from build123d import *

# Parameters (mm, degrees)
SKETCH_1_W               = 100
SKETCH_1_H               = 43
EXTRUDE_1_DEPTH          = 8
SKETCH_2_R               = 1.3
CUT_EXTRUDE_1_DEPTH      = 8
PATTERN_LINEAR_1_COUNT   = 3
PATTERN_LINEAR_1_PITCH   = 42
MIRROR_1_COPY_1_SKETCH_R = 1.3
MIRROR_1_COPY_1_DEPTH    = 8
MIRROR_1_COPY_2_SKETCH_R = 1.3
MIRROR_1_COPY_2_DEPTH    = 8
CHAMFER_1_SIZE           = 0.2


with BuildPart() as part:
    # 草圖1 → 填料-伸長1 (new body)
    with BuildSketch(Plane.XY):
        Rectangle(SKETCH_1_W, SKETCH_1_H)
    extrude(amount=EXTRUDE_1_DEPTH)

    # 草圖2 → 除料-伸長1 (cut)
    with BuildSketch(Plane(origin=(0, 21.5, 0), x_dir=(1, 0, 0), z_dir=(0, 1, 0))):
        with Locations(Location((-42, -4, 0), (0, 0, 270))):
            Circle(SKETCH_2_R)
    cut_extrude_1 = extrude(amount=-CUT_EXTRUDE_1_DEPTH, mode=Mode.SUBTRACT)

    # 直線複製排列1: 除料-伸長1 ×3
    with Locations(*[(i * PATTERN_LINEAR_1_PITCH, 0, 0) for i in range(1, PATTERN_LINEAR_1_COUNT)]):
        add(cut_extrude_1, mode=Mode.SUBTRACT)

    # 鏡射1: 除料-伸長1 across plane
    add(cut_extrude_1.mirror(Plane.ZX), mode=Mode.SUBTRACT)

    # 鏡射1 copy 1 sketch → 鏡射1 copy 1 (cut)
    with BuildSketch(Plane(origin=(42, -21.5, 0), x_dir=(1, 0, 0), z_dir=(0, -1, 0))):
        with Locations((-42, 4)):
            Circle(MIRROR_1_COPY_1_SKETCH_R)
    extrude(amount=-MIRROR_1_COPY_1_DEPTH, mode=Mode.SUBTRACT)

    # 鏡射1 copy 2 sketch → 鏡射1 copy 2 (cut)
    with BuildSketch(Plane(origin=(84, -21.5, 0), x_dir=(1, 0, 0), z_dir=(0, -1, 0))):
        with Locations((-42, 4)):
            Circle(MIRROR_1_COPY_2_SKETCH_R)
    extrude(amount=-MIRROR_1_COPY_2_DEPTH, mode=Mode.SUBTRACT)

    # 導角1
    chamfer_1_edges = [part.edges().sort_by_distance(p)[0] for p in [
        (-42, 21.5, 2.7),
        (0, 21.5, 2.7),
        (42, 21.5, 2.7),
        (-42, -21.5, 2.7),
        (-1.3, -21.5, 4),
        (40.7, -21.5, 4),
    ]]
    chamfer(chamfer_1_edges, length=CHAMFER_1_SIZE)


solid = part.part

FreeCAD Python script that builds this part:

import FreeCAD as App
import Part
import Sketcher

V = App.Vector


def edges_at(feature, points):
    """Names of the edges that pass closest to the given points."""
    edges = feature.Shape.Edges
    near = lambda p: min(range(len(edges)), key=lambda i: edges[i].distToShape(Part.Vertex(*p))[0])
    return sorted({f"Edge{near(p) + 1}" for p in points})

doc = App.newDocument("Part")
body = doc.addObject("PartDesign::Body", "Body")

# Sketch on XY plane
sketch1 = body.newObject("Sketcher::SketchObject", "Sketch")
sketch1.AttachmentSupport = (doc.getObject("XY_Plane"), [""])
sketch1.MapMode = "FlatFace"
sketch1.addGeometry([
    Part.LineSegment(V(-50, 22, 0), V(-50, -22, 0)),
    Part.LineSegment(V(-50, -22, 0), V(50, -22, 0)),
    Part.LineSegment(V(50, -22, 0), V(50, 22, 0)),
    Part.LineSegment(V(50, 22, 0), V(-50, 22, 0)),
], False)
sketch1.addConstraint([
    Sketcher.Constraint("Coincident", 0, 2, 1, 1),
    Sketcher.Constraint("Coincident", 1, 2, 2, 1),
    Sketcher.Constraint("Coincident", 2, 2, 3, 1),
    Sketcher.Constraint("Coincident", 3, 2, 0, 1),
    Sketcher.Constraint("Vertical", 0),
    Sketcher.Constraint("Horizontal", 1),
    Sketcher.Constraint("Vertical", 2),
    Sketcher.Constraint("Horizontal", 3),
    Sketcher.Constraint("Symmetric", 0, 2, 2, 2, -1, 1),
    Sketcher.Constraint("DistanceX", 1, 1, 1, 2, 100.0),
    Sketcher.Constraint("DistanceY", 0, 2, 0, 1, 43.0),
])
pad1 = body.newObject("PartDesign::Pad", "Pad")
pad1.Profile = sketch1
pad1.Length = 8

# Sketch on XZ plane
sketch2 = body.newObject("Sketcher::SketchObject", "Sketch001")
sketch2.AttachmentSupport = (doc.getObject("XZ_Plane"), [""])
sketch2.MapMode = "FlatFace"
sketch2.AttachmentOffset = App.Placement(V(0, 0, -21.5), App.Rotation())
sketch2.addGeometry(Part.Circle(V(-42, 4, 0), V(0, 0, 1), 1.3), False)
sketch2.addConstraint([
    Sketcher.Constraint("Diameter", 0, 2.6),
    Sketcher.Constraint("DistanceX", 0, 3, -1, 1, 42.0),
    Sketcher.Constraint("DistanceY", -1, 1, 0, 3, 4.0),
])
pocket1 = body.newObject("PartDesign::Pocket", "Pocket")
pocket1.Profile = sketch2
pocket1.Length = 8
pocket1.Reversed = True
doc.recompute()

linearpattern = body.newObject("PartDesign::LinearPattern", "LinearPattern")
linearpattern.Originals = [pocket1]
linearpattern.Direction = (doc.getObject("X_Axis"), [""])
linearpattern.Mode = "offset"
linearpattern.Offset = 42
linearpattern.Occurrences = 3
body.Tip = linearpattern
doc.recompute()

mirrored = body.newObject("PartDesign::Mirrored", "Mirrored")
mirrored.Originals = [pocket1]
mirrored.MirrorPlane = (doc.getObject("XZ_Plane"), [""])
body.Tip = mirrored

# Sketch on XZ plane
sketch3 = body.newObject("Sketcher::SketchObject", "Sketch002")
sketch3.AttachmentSupport = (doc.getObject("XZ_Plane"), [""])
sketch3.MapMode = "FlatFace"
sketch3.AttachmentOffset = App.Placement(V(0, 0, 21.5), App.Rotation())
sketch3.addGeometry(Part.Circle(V(0, 4, 0), V(0, 0, 1), 1.3), False)
sketch3.addConstraint([
    Sketcher.Constraint("PointOnObject", 0, 3, -2),
    Sketcher.Constraint("Diameter", 0, 2.6),
    Sketcher.Constraint("DistanceY", -1, 1, 0, 3, 4.0),
])
pocket2 = body.newObject("PartDesign::Pocket", "Pocket001")
pocket2.Profile = sketch3
pocket2.Length = 8

# Sketch on XZ plane
sketch4 = body.newObject("Sketcher::SketchObject", "Sketch003")
sketch4.AttachmentSupport = (doc.getObject("XZ_Plane"), [""])
sketch4.MapMode = "FlatFace"
sketch4.AttachmentOffset = App.Placement(V(0, 0, 21.5), App.Rotation())
sketch4.addGeometry(Part.Circle(V(42, 4, 0), V(0, 0, 1), 1.3), False)
sketch4.addConstraint([
    Sketcher.Constraint("Diameter", 0, 2.6),
    Sketcher.Constraint("DistanceX", -1, 1, 0, 3, 42.0),
    Sketcher.Constraint("DistanceY", -1, 1, 0, 3, 4.0),
])
pocket3 = body.newObject("PartDesign::Pocket", "Pocket002")
pocket3.Profile = sketch4
pocket3.Length = 8
doc.recompute()

chamfer = body.newObject("PartDesign::Chamfer", "Chamfer")
chamfer.Base = (pocket3, edges_at(pocket3, [
    (-42, 21.5, 2.7),
    (0, 21.5, 2.7),
    (42, 21.5, 2.7),
    (-42, -21.5, 2.7),
    (-1.3, -21.5, 4),
    (40.7, -21.5, 4),
]))
chamfer.Size = 0.2

doc.recompute()
